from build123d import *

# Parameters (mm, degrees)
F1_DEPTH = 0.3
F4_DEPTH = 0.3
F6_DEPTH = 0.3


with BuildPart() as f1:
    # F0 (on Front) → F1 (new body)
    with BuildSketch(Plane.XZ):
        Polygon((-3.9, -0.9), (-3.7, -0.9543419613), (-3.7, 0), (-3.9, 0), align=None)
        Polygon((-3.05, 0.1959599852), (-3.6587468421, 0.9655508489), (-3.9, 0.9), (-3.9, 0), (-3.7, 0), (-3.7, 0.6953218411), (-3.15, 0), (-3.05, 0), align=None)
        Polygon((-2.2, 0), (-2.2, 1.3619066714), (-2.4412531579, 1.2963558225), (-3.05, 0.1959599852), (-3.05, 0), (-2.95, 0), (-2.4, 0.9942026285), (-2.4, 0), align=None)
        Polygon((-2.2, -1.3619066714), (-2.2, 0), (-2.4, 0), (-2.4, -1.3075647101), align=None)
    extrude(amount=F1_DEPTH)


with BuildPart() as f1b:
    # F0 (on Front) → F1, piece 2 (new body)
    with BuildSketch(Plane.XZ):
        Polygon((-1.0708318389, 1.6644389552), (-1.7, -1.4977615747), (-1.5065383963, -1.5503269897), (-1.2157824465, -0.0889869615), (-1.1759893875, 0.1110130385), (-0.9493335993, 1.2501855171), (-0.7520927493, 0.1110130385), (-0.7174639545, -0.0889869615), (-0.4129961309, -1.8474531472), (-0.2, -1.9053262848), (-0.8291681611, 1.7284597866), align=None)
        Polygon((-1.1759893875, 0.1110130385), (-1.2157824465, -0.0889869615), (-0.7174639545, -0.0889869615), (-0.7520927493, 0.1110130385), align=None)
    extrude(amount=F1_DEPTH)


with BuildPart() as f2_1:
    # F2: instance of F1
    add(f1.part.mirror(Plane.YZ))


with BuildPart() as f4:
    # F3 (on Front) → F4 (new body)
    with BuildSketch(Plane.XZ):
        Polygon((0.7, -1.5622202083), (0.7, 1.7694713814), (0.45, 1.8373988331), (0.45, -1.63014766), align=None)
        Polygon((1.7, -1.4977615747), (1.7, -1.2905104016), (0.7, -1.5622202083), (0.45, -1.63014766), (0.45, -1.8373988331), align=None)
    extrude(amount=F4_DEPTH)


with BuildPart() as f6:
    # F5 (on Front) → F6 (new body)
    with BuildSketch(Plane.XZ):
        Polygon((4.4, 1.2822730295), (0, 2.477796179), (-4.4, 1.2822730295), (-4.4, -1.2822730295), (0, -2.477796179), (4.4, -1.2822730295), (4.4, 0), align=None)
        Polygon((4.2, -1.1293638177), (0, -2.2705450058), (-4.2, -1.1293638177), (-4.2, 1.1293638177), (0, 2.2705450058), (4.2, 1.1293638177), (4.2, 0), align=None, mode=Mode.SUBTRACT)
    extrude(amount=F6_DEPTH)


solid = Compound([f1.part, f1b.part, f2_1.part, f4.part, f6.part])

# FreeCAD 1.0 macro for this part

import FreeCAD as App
import Part
import Sketcher
from FreeCAD import Vector


def add_polygon(sketch, points):
    """Adds a closed chain of lines whose ends are joined by coincident constraints."""
    first, n = sketch.GeometryCount, len(points)
    for a, b in zip(points, points[1:] + points[:1]):
        sketch.addGeometry(Part.LineSegment(App.Vector(*a, 0), App.Vector(*b, 0)), False)
    for i in range(n):
        sketch.addConstraint(Sketcher.Constraint("Coincident", first + i, 2, first + (i + 1) % n, 1))

doc = App.newDocument("Part")
body = doc.addObject("PartDesign::Body", "Body")

# Sketch on XZ plane
sketch1 = doc.addObject("Sketcher::SketchObject", "Sketch")
body.addObject(sketch1)
sketch1.AttachmentSupport = (doc.XZ_Plane, [""])
sketch1.MapMode = "FlatFace"
add_polygon(sketch1, [(-3.9, -0.9), (-3.7, -0.954342), (-3.7, 0.695322), (-3.15, 0), (-2.95, 0), (-2.4, 0.994203), (-2.4, -1.307565), (-2.2, -1.361907), (-2.2, 1.361907), (-2.441253, 1.296356), (-3.05, 0.19596), (-3.658747, 0.965551), (-3.9, 0.9)])  # lines 0-12
sketch1.addConstraint(Sketcher.Constraint("Vertical", 1))
sketch1.addConstraint(Sketcher.Constraint("Horizontal", 3))
sketch1.addConstraint(Sketcher.Constraint("Vertical", 5))
sketch1.addConstraint(Sketcher.Constraint("Vertical", 7))
sketch1.addConstraint(Sketcher.Constraint("Vertical", 12))
sketch1.addConstraint(Sketcher.Constraint("PointOnObject", 2, 2, -1))
sketch1.addConstraint(Sketcher.Constraint("Parallel", 0, 6))
sketch1.addConstraint(Sketcher.Constraint("Parallel", 4, 9))
sketch1.addConstraint(Sketcher.Constraint("Parallel", 2, 10))
sketch1.addConstraint(Sketcher.Constraint("Parallel", 8, 11))
sketch1.addConstraint(Sketcher.Constraint("Equal", 0, 6))
sketch1.addConstraint(Sketcher.Constraint("Equal", 8, 11))
sketch1.addConstraint(Sketcher.Constraint("DistanceX", 3, 1, 3, 2, 0.2))
sketch1.addConstraint(Sketcher.Constraint("DistanceY", 12, 2, 12, 1, 1.8))
sketch1.addConstraint(Sketcher.Constraint("DistanceX", 0, 2, -1, 1, 3.7))
sketch1.addConstraint(Sketcher.Constraint("DistanceX", 4, 2, -1, 1, 2.4))
sketch1.addConstraint(Sketcher.Constraint("DistanceX", 6, 2, -1, 1, 2.2))
sketch1.addConstraint(Sketcher.Constraint("DistanceY", -1, 1, 11, 2, 0.9))
sketch1.addConstraint(Sketcher.Constraint("DistanceX", 9, 2, 3, 2, 0.1))
sketch1.addConstraint(Sketcher.Constraint("Distance", 8, 0.25))
sketch1.addConstraint(Sketcher.Constraint("DistanceX", 2, 2, -1, 1, 3.15))
sketch1.addConstraint(Sketcher.Constraint("Distance", 0, 0.207251))
sketch1.addConstraint(Sketcher.Constraint("Distance", 2, 0.886551))
sketch1.addConstraint(Sketcher.Constraint("DistanceY", 5, 2, 5, 1, 2.301767))
sketch1.addConstraint(Sketcher.Constraint("DistanceY", 7, 1, 7, 2, 2.723813))
sketch1.addConstraint(Sketcher.Constraint("DistanceY", -1, 1, 9, 2, 0.19596))
pad1 = doc.addObject("PartDesign::Pad", "Pad")
body.addObject(pad1)
pad1.Profile = sketch1
pad1.Length = 0.3
body2 = doc.addObject("PartDesign::Body", "Body001")

# Sketch on XZ plane
sketch2 = doc.addObject("Sketcher::SketchObject", "Sketch001")
body2.addObject(sketch2)
sketch2.AttachmentSupport = (doc.getObject("XZ_Plane001"), [""])
sketch2.MapMode = "FlatFace"
add_polygon(sketch2, [(-1.070832, 1.664439), (-1.7, -1.497762), (-1.506538, -1.550327), (-1.215782, -0.088987), (-0.717464, -0.088987), (-0.412996, -1.847453), (-0.2, -1.905326), (-0.829168, 1.72846)])  # lines 0-7
add_polygon(sketch2, [(-1.175989, 0.111013), (-0.949334, 1.250186), (-0.752093, 0.111013)])  # lines 8-10
sketch2.addConstraint(Sketcher.Constraint("Horizontal", 3))
sketch2.addConstraint(Sketcher.Constraint("Horizontal", 10))
sketch2.addConstraint(Sketcher.Constraint("Parallel", 0, 2))
sketch2.addConstraint(Sketcher.Constraint("Parallel", 1, 5))
sketch2.addConstraint(Sketcher.Constraint("Parallel", 4, 6))
sketch2.addConstraint(Sketcher.Constraint("Parallel", 2, 8))
sketch2.addConstraint(Sketcher.Constraint("Parallel", 6, 9))
sketch2.addConstraint(Sketcher.Constraint("DistanceX", 0, 2, -1, 1, 1.7))
sketch2.addConstraint(Sketcher.Constraint("DistanceX", 5, 2, -1, 1, 0.2))
sketch2.addConstraint(Sketcher.Constraint("DistanceY", 3, 2, 9, 2, 0.2))
sketch2.addConstraint(Sketcher.Constraint("Distance", 7, 0.25))
sketch2.addConstraint(Sketcher.Constraint("DistanceY", 5, 2, 1, 2, 0.354999))
sketch2.addConstraint(Sketcher.Constraint("Distance", 8, 1.161502))
sketch2.addConstraint(Sketcher.Constraint("DistanceX", 3, 1, 3, 2, 0.498318))
sketch2.addConstraint(Sketcher.Constraint("DistanceY", 0, 2, 7, 2, 3.162201))
sketch2.addConstraint(Sketcher.Constraint("DistanceX", 7, 2, 8, 2, 0.121498))
sketch2.addConstraint(Sketcher.Constraint("Distance", 4, 1.78463))
sketch2.addConstraint(Sketcher.Constraint("Distance", 5, 0.220718))
sketch2.addConstraint(Sketcher.Constraint("Distance", 9, 1.156122))
sketch2.addConstraint(Sketcher.Constraint("DistanceX", 10, 2, 10, 1, 0.423897))
sketch2.addConstraint(Sketcher.Constraint("DistanceY", 0, 2, -1, 1, 1.497762))
sketch2.addConstraint(Sketcher.Constraint("DistanceX", 1, 2, -1, 1, 1.506538))
pad2 = doc.addObject("PartDesign::Pad", "Pad001")
body2.addObject(pad2)
pad2.Profile = sketch2
pad2.Length = 0.3
body3 = doc.addObject("PartDesign::Body", "Body002")
doc.recompute()

mirroring = doc.addObject("Part::Mirroring", "Mirroring")
mirroring.Source = body
mirroring.Base = Vector(0, 0, 0)
mirroring.Normal = Vector(1, 0, 0)
body3.BaseFeature = mirroring
doc.recompute()
body4 = doc.addObject("PartDesign::Body", "Body003")

# Sketch on XZ plane
sketch3 = doc.addObject("Sketcher::SketchObject", "Sketch002")
body4.addObject(sketch3)
sketch3.AttachmentSupport = (doc.getObject("XZ_Plane003"), [""])
sketch3.MapMode = "FlatFace"
add_polygon(sketch3, [(0.7, -1.56222), (0.7, 1.769471), (0.45, 1.837399), (0.45, -1.837399), (1.7, -1.497762), (1.7, -1.29051)])  # lines 0-5
sketch3.addConstraint(Sketcher.Constraint("Vertical", 0))
sketch3.addConstraint(Sketcher.Constraint("Vertical", 2))
sketch3.addConstraint(Sketcher.Constraint("Vertical", 4))
sketch3.addConstraint(Sketcher.Constraint("Parallel", 3, 5))
sketch3.addConstraint(Sketcher.Constraint("DistanceX", 0, 2, 3, 2, 1.0))
sketch3.addConstraint(Sketcher.Constraint("DistanceX", -1, 1, 0, 2, 0.7))
sketch3.addConstraint(Sketcher.Constraint("DistanceX", -1, 1, 1, 2, 0.45))
sketch3.addConstraint(Sketcher.Constraint("DistanceY", 0, 1, 0, 2, 3.331692))
sketch3.addConstraint(Sketcher.Constraint("DistanceY", 4, 1, 4, 2, 0.207251))
sketch3.addConstraint(Sketcher.Constraint("DistanceY", -1, 1, 1, 2, 1.837399))
sketch3.addConstraint(Sketcher.Constraint("DistanceY", 2, 2, -1, 1, 1.837399))
sketch3.addConstraint(Sketcher.Constraint("Distance", 3, 1.29532))
pad3 = doc.addObject("PartDesign::Pad", "Pad002")
body4.addObject(pad3)
pad3.Profile = sketch3
pad3.Length = 0.3
body5 = doc.addObject("PartDesign::Body", "Body004")

# Sketch on XZ plane
sketch4 = doc.addObject("Sketcher::SketchObject", "Sketch003")
body5.addObject(sketch4)
sketch4.AttachmentSupport = (doc.getObject("XZ_Plane004"), [""])
sketch4.MapMode = "FlatFace"
add_polygon(sketch4, [(4.4, 1.282273), (0, 2.477796), (-4.4, 1.282273), (-4.4, -1.282273), (0, -2.477796), (4.4, -1.282273)])  # lines 0-5
add_polygon(sketch4, [(4.2, 1.129364), (4.2, -1.129364), (0, -2.270545), (-4.2, -1.129364), (-4.2, 1.129364), (0, 2.270545)])  # lines 6-11
sketch4.addConstraint(Sketcher.Constraint("Vertical", 2))
sketch4.addConstraint(Sketcher.Constraint("Vertical", 5))
sketch4.addConstraint(Sketcher.Constraint("Vertical", 6))
sketch4.addConstraint(Sketcher.Constraint("Vertical", 9))
sketch4.addConstraint(Sketcher.Constraint("Symmetric", 0, 2, 3, 2, -1, 1))
sketch4.addConstraint(Sketcher.Constraint("Symmetric", 1, 2, 4, 2, -1, 1))
sketch4.addConstraint(Sketcher.Constraint("Symmetric", 6, 2, 9, 2, -1, 1))
sketch4.addConstraint(Sketcher.Constraint("Symmetric", 7, 2, 10, 2, -1, 1))
sketch4.addConstraint(Sketcher.Constraint("PointOnObject", 0, 2, -2))
sketch4.addConstraint(Sketcher.Constraint("PointOnObject", 7, 2, -2))
sketch4.addConstraint(Sketcher.Constraint("Parallel", 0, 3))
sketch4.addConstraint(Sketcher.Constraint("Parallel", 4, 7))
sketch4.addConstraint(Sketcher.Constraint("Parallel", 3, 8))
sketch4.addConstraint(Sketcher.Constraint("Parallel", 8, 11))
sketch4.addConstraint(Sketcher.Constraint("Horizontal", 2, 2, 4, 2))
sketch4.addConstraint(Sketcher.Constraint("DistanceX", 1, 2, -1, 1, 4.4))
sketch4.addConstraint(Sketcher.Constraint("DistanceX", -1, 1, 6, 2, 4.2))
sketch4.addConstraint(Sketcher.Constraint("DistanceY", 2, 2, 2, 1, 2.564546))
sketch4.addConstraint(Sketcher.Constraint("DistanceY", 6, 2, 6, 1, 2.258728))
sketch4.addConstraint(Sketcher.Constraint("DistanceY", 2, 2, 0, 2, 3.760069))
pad4 = doc.addObject("PartDesign::Pad", "Pad003")
body5.addObject(pad4)
pad4.Profile = sketch4
pad4.Length = 0.3
mirroring.Visibility = False

doc.recompute()
